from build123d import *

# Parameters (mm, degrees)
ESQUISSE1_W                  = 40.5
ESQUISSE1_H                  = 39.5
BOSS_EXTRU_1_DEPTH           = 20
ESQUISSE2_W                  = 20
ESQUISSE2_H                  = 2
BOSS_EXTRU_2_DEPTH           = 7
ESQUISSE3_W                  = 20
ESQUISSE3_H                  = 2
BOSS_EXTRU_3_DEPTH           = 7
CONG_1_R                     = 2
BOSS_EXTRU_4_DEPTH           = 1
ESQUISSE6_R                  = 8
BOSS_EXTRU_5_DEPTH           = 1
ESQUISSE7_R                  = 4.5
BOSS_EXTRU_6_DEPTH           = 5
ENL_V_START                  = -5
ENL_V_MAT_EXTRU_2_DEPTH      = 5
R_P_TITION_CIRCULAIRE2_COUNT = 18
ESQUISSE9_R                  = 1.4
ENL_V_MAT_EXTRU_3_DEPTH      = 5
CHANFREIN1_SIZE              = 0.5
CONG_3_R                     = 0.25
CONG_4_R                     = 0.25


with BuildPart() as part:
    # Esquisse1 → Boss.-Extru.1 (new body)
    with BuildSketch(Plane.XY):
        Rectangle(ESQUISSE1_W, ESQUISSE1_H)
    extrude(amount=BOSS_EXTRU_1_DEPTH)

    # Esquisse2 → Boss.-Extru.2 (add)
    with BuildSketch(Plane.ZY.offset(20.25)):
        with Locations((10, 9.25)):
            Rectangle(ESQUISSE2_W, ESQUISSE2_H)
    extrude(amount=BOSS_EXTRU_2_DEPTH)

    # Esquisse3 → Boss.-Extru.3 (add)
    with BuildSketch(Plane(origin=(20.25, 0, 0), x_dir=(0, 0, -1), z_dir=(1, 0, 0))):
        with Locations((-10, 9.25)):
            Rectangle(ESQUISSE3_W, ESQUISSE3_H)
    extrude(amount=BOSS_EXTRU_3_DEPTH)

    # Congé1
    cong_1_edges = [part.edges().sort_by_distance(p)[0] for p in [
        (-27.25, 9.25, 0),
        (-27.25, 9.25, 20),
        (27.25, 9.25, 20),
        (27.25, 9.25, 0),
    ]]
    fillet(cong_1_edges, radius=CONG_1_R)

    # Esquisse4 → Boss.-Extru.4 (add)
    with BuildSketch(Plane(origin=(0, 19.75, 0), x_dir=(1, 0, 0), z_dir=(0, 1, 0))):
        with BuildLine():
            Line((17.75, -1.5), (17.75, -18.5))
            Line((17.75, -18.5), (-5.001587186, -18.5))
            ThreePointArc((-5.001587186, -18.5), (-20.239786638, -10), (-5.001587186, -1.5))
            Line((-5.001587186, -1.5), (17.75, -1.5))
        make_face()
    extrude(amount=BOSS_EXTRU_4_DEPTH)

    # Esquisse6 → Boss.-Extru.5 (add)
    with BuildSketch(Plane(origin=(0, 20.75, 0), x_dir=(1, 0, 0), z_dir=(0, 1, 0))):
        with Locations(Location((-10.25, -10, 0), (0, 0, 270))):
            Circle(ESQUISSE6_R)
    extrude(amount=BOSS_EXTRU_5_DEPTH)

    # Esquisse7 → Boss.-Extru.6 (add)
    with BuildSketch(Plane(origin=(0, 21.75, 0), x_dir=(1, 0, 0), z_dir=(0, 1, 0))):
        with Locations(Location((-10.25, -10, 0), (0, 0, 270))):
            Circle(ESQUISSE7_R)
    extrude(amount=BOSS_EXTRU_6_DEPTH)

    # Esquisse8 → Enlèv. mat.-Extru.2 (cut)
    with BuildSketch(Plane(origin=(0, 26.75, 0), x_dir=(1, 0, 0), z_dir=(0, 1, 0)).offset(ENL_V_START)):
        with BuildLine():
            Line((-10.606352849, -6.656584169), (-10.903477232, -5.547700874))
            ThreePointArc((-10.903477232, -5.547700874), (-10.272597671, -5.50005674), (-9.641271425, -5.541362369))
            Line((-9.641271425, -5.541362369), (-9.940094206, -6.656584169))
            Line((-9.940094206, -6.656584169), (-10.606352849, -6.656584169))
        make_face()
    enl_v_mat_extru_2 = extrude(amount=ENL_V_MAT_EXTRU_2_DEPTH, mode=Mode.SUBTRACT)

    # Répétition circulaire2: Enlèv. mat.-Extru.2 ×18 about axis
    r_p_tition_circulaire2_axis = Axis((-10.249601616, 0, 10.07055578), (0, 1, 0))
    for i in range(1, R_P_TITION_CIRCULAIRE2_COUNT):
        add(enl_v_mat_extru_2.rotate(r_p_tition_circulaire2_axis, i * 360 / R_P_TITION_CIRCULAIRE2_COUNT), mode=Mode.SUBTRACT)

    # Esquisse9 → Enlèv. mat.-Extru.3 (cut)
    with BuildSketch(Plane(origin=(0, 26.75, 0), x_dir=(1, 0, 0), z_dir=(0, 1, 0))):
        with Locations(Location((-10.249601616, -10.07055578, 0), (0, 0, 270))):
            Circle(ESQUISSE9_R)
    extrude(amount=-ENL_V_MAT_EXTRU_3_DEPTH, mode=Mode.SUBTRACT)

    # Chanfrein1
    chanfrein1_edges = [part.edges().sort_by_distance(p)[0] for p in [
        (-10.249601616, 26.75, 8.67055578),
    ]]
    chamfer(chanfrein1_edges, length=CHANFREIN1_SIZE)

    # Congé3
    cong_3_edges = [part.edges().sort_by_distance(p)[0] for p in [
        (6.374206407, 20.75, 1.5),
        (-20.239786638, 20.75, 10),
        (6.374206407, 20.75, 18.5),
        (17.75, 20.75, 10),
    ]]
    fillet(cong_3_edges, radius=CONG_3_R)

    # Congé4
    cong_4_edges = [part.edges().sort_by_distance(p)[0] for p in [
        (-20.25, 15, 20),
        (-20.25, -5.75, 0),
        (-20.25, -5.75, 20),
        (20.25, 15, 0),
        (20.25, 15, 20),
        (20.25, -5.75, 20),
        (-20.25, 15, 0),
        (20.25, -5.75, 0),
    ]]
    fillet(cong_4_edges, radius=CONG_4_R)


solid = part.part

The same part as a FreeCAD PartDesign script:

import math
import FreeCAD as App
import Part
import Sketcher
from FreeCAD import Vector
Q = App.Units.Quantity


def edges_at(feature, points):
    """Names of the edges that pass closest to the given points."""
    edges = feature.Shape.Edges
    near = lambda p: min(range(len(edges)), key=lambda i: edges[i].distToShape(Part.Vertex(*p))[0])
    return sorted({f"Edge{near(p) + 1}" for p in points})


def add_polygon(sketch, points):
    """Adds a closed chain of lines whose ends are joined by coincident constraints."""
    first, n = sketch.GeometryCount, len(points)
    for a, b in zip(points, points[1:] + points[:1]):
        sketch.addGeometry(Part.LineSegment(App.Vector(*a, 0), App.Vector(*b, 0)), False)
    for i in range(n):
        sketch.addConstraint(Sketcher.Constraint("Coincident", first + i, 2, first + (i + 1) % n, 1))

doc = App.newDocument("Part")
params = doc.addObject("Spreadsheet::Sheet", "Params")
for row, (alias, value) in enumerate([
    ("sketch1_width", "40.5 mm"),
    ("sketch1_height", "39.5 mm"),
    ("pad1_length", "20 mm"),
    ("sketch2_width", "2 mm"),
    ("sketch2_height", "20 mm"),
    ("pad2_length", "7 mm"),
    ("sketch3_width", "2 mm"),
    ("sketch3_height", "20 mm"),
    ("pad3_length", "7 mm"),
    ("fillet_radius", "2 mm"),
    ("sketch4_height", "17 mm"),
    ("pad4_length", "1 mm"),
    ("sketch5_diameter", "16 mm"),
    ("pad5_length", "1 mm"),
    ("sketch6_diameter", "9 mm"),
    ("pad6_length", "5 mm"),
    ("sketch7_radius", "4.5 mm"),
    ("pocket1_length", "5 mm"),
    ("sketch8_diameter", "2.8 mm"),
    ("pocket2_length", "5 mm"),
    ("chamfer_size", "0.5 mm"),
    ("fillet2_radius", "0.25 mm"),
    ("fillet3_radius", "0.25 mm"),
], start=1):
    params.set(f"A{row}", alias)
    params.set(f"B{row}", "=" + value)
    params.setAlias(f"B{row}", alias)

body = doc.addObject("PartDesign::Body", "Body")

# Sketch on XY plane
sketch1 = body.newObject("Sketcher::SketchObject", "Sketch")
sketch1.AttachmentSupport = (doc.getObject("XY_Plane"), [""])
sketch1.MapMode = "FlatFace"
add_polygon(sketch1, [(-20, 20), (-20, -20), (20, -20), (20, 20)])  # lines 0-3
sketch1.addConstraint(Sketcher.Constraint("Vertical", 0))
sketch1.addConstraint(Sketcher.Constraint("Horizontal", 1))
sketch1.addConstraint(Sketcher.Constraint("Vertical", 2))
sketch1.addConstraint(Sketcher.Constraint("Horizontal", 3))
sketch1.addConstraint(Sketcher.Constraint("Symmetric", 0, 2, 2, 2, -1, 1))
sketch1.addConstraint(Sketcher.Constraint("DistanceX", 1, 1, 1, 2, 40.5))
sketch1.addConstraint(Sketcher.Constraint("DistanceY", 0, 2, 0, 1, 39.5))
sketch1.setExpression("Constraints[9]", "Params.sketch1_width")
sketch1.setExpression("Constraints[10]", "Params.sketch1_height")
pad1 = body.newObject("PartDesign::Pad", "Pad")
pad1.Profile = sketch1
pad1.setExpression("Length", "Params.pad1_length")

# Sketch on YZ plane
sketch2 = body.newObject("Sketcher::SketchObject", "Sketch001")
sketch2.AttachmentSupport = (doc.getObject("YZ_Plane"), [""])
sketch2.MapMode = "FlatFace"
sketch2.AttachmentOffset = App.Placement(Vector(0, 0, -20.25), App.Rotation())
add_polygon(sketch2, [(10.2, 0), (8.2, 0), (8.2, 20), (10.2, 20)])  # lines 0-3
sketch2.addConstraint(Sketcher.Constraint("Horizontal", 0))
sketch2.addConstraint(Sketcher.Constraint("Vertical", 1))
sketch2.addConstraint(Sketcher.Constraint("Horizontal", 2))
sketch2.addConstraint(Sketcher.Constraint("Vertical", 3))
sketch2.addConstraint(Sketcher.Constraint("PointOnObject", 0, 2, -1))
sketch2.addConstraint(Sketcher.Constraint("DistanceX", 0, 2, 0, 1, 2.0))
sketch2.addConstraint(Sketcher.Constraint("DistanceY", 1, 1, 1, 2, 20.0))
sketch2.addConstraint(Sketcher.Constraint("DistanceX", -1, 1, 0, 2, 8.25))
sketch2.setExpression("Constraints[9]", "Params.sketch2_width")
sketch2.setExpression("Constraints[10]", "Params.sketch2_height")
pad2 = body.newObject("PartDesign::Pad", "Pad001")
pad2.Profile = sketch2
pad2.setExpression("Length", "Params.pad2_length")
pad2.Reversed = True

# Sketch on YZ plane
sketch3 = body.newObject("Sketcher::SketchObject", "Sketch002")
sketch3.AttachmentSupport = (doc.getObject("YZ_Plane"), [""])
sketch3.MapMode = "FlatFace"
sketch3.AttachmentOffset = App.Placement(Vector(0, 0, 20.25), App.Rotation())
add_polygon(sketch3, [(10.2, 20), (8.2, 20), (8.2, 0), (10.2, 0)])  # lines 0-3
sketch3.addConstraint(Sketcher.Constraint("Horizontal", 0))
sketch3.addConstraint(Sketcher.Constraint("Vertical", 1))
sketch3.addConstraint(Sketcher.Constraint("Horizontal", 2))
sketch3.addConstraint(Sketcher.Constraint("Vertical", 3))
sketch3.addConstraint(Sketcher.Constraint("PointOnObject", 1, 2, -1))
sketch3.addConstraint(Sketcher.Constraint("DistanceX", 0, 2, 0, 1, 2.0))
sketch3.addConstraint(Sketcher.Constraint("DistanceY", 1, 2, 1, 1, 20.0))
sketch3.addConstraint(Sketcher.Constraint("DistanceX", -1, 1, 0, 2, 8.25))
sketch3.setExpression("Constraints[9]", "Params.sketch3_width")
sketch3.setExpression("Constraints[10]", "Params.sketch3_height")
pad3 = body.newObject("PartDesign::Pad", "Pad002")
pad3.Profile = sketch3
pad3.setExpression("Length", "Params.pad3_length")
doc.recompute()

fillet = body.newObject("PartDesign::Fillet", "Fillet")
fillet.Base = (pad3, edges_at(pad3, [
    (-27.25, 9.25, 0),
    (-27.25, 9.25, 20),
    (27.25, 9.25, 20),
    (27.25, 9.25, 0),
]))
fillet.setExpression("Radius", "Params.fillet_radius")

# Sketch on XZ plane
sketch4 = body.newObject("Sketcher::SketchObject", "Sketch003")
sketch4.AttachmentSupport = (doc.getObject("XZ_Plane"), [""])
sketch4.MapMode = "FlatFace"
sketch4.AttachmentOffset = App.Placement(Vector(0, 0, -19.75), App.Rotation())
sketch4.addGeometry(Part.LineSegment(Vector(18, 18, 0), Vector(18, 2, 0)), False)
sketch4.addGeometry(Part.LineSegment(Vector(18, 2, 0), Vector(-5, 2, 0)), False)
sketch4.addGeometry(Part.ArcOfCircle(Part.Circle(Vector(-10, 10, 0), Vector(0, 0, 1), 10), math.radians(58), math.radians(302)), False)
sketch4.addGeometry(Part.LineSegment(Vector(-5, 18, 0), Vector(18, 18, 0)), False)
sketch4.addConstraint(Sketcher.Constraint("Coincident", 0, 2, 1, 1))
sketch4.addConstraint(Sketcher.Constraint("Coincident", 1, 2, 2, 2))
sketch4.addConstraint(Sketcher.Constraint("Coincident", 2, 1, 3, 1))
sketch4.addConstraint(Sketcher.Constraint("Coincident", 3, 2, 0, 1))
sketch4.addConstraint(Sketcher.Constraint("Vertical", 0))
sketch4.addConstraint(Sketcher.Constraint("Horizontal", 1))
sketch4.addConstraint(Sketcher.Constraint("Horizontal", 3))
sketch4.addConstraint(Sketcher.Constraint("Vertical", 1, 2, 2, 1))
sketch4.addConstraint(Sketcher.Constraint("DistanceY", 0, 2, 0, 1, 17.0))
sketch4.addConstraint(Sketcher.Constraint("DistanceY", -1, 1, 2, 3, 10.0))
sketch4.addConstraint(Sketcher.Constraint("DistanceX", 2, 3, 0, 2, 28.0))
sketch4.addConstraint(Sketcher.Constraint("DistanceX", 2, 3, -1, 1, 10.25))
sketch4.addConstraint(Sketcher.Constraint("Radius", 2, 9.989787))
sketch4.setExpression("Constraints[8]", "Params.sketch4_height")
pad4 = body.newObject("PartDesign::Pad", "Pad003")
pad4.Profile = sketch4
pad4.setExpression("Length", "Params.pad4_length")
pad4.Reversed = True

# Sketch on XZ plane
sketch5 = body.newObject("Sketcher::SketchObject", "Sketch004")
sketch5.AttachmentSupport = (doc.getObject("XZ_Plane"), [""])
sketch5.MapMode = "FlatFace"
sketch5.AttachmentOffset = App.Placement(Vector(0, 0, -20.75), App.Rotation())
sketch5.addGeometry(Part.Circle(Vector(-10, 10, 0), Vector(0, 0, 1), 8), False)
sketch5.addConstraint(Sketcher.Constraint("Diameter", 0, 16.0))
sketch5.addConstraint(Sketcher.Constraint("DistanceY", -1, 1, 0, 3, 10.0))
sketch5.addConstraint(Sketcher.Constraint("DistanceX", 0, 3, -1, 1, 10.25))
sketch5.setExpression("Constraints[0]", "Params.sketch5_diameter")
pad5 = body.newObject("PartDesign::Pad", "Pad004")
pad5.Profile = sketch5
pad5.setExpression("Length", "Params.pad5_length")
pad5.Reversed = True

# Sketch on XZ plane
sketch6 = body.newObject("Sketcher::SketchObject", "Sketch005")
sketch6.AttachmentSupport = (doc.getObject("XZ_Plane"), [""])
sketch6.MapMode = "FlatFace"
sketch6.AttachmentOffset = App.Placement(Vector(0, 0, -21.75), App.Rotation())
sketch6.addGeometry(Part.Circle(Vector(-10.2, 10, 0), Vector(0, 0, 1), 4.5), False)
sketch6.addConstraint(Sketcher.Constraint("Diameter", 0, 9.0))
sketch6.addConstraint(Sketcher.Constraint("DistanceY", -1, 1, 0, 3, 10.0))
sketch6.addConstraint(Sketcher.Constraint("DistanceX", 0, 3, -1, 1, 10.25))
sketch6.setExpression("Constraints[0]", "Params.sketch6_diameter")
pad6 = body.newObject("PartDesign::Pad", "Pad005")
pad6.Profile = sketch6
pad6.setExpression("Length", "Params.pad6_length")
pad6.Reversed = True

# Sketch on XZ plane
sketch7 = body.newObject("Sketcher::SketchObject", "Sketch006")
sketch7.AttachmentSupport = (doc.getObject("XZ_Plane"), [""])
sketch7.MapMode = "FlatFace"
sketch7.AttachmentOffset = App.Placement(Vector(0, 0, -21.75), App.Rotation())
sketch7.addGeometry(Part.LineSegment(Vector(-10.9, 5.5, 0), Vector(-10.6, 6.7, 0)), False)
sketch7.addGeometry(Part.LineSegment(Vector(-10.6, 6.7, 0), Vector(-9.9, 6.7, 0)), False)
sketch7.addGeometry(Part.LineSegment(Vector(-9.9, 6.7, 0), Vector(-9.6, 5.5, 0)), False)
sketch7.addGeometry(Part.ArcOfCircle(Part.Circle(Vector(-10.2, 10, 0), Vector(0, 0, 1), 4.5), math.radians(-98.35), math.radians(-82.23)), False)
sketch7.addConstraint(Sketcher.Constraint("Coincident", 0, 2, 1, 1))
sketch7.addConstraint(Sketcher.Constraint("Coincident", 1, 2, 2, 1))
sketch7.addConstraint(Sketcher.Constraint("Coincident", 2, 2, 3, 2))
sketch7.addConstraint(Sketcher.Constraint("Coincident", 3, 1, 0, 1))
sketch7.addConstraint(Sketcher.Constraint("Horizontal", 1))
sketch7.addConstraint(Sketcher.Constraint("Radius", 3, 4.5))
sketch7.addConstraint(Sketcher.Constraint("Angle", 0, Q("75 deg")))
sketch7.addConstraint(Sketcher.Constraint("Angle", 2, Q("-75 deg")))
sketch7.addConstraint(Sketcher.Constraint("DistanceY", -1, 1, 3, 3, 10.0))
sketch7.addConstraint(Sketcher.Constraint("DistanceX", 3, 3, -1, 1, 10.25))
sketch7.addConstraint(Sketcher.Constraint("Distance", 0, 1.148))
sketch7.addConstraint(Sketcher.Constraint("DistanceX", 1, 1, 1, 2, 0.666259))
sketch7.addConstraint(Sketcher.Constraint("DistanceY", -1, 1, 3, 1, 5.547701))
sketch7.setExpression("Constraints[5]", "Params.sketch7_radius")
pocket1 = body.newObject("PartDesign::Pocket", "Pocket")
pocket1.Profile = sketch7
pocket1.setExpression("Length", "Params.pocket1_length")
doc.recompute()

datumline = body.newObject("PartDesign::Line", "DatumLine")
datumline.Placement = App.Placement(Vector(-10.249602, 0, 10.070556), App.Rotation(Vector(0, 0, 1), Vector(0, 1, 0)))
polarpattern = body.newObject("PartDesign::PolarPattern", "PolarPattern")
polarpattern.Originals = [pocket1]
polarpattern.Axis = (datumline, [""])
polarpattern.Angle = 360
polarpattern.Occurrences = 18
body.Tip = polarpattern

# Sketch on XZ plane
sketch8 = body.newObject("Sketcher::SketchObject", "Sketch007")
sketch8.AttachmentSupport = (doc.getObject("XZ_Plane"), [""])
sketch8.MapMode = "FlatFace"
sketch8.AttachmentOffset = App.Placement(Vector(0, 0, -26.75), App.Rotation())
sketch8.addGeometry(Part.Circle(Vector(-10.2, 10.1, 0), Vector(0, 0, 1), 1.4), False)
sketch8.addConstraint(Sketcher.Constraint("Diameter", 0, 2.8))
sketch8.addConstraint(Sketcher.Constraint("DistanceX", 0, 3, -1, 1, 10.249602))
sketch8.addConstraint(Sketcher.Constraint("DistanceY", -1, 1, 0, 3, 10.070556))
sketch8.setExpression("Constraints[0]", "Params.sketch8_diameter")
pocket2 = body.newObject("PartDesign::Pocket", "Pocket001")
pocket2.Profile = sketch8
pocket2.setExpression("Length", "Params.pocket2_length")
pocket2.Reversed = True
doc.recompute()

chamfer = body.newObject("PartDesign::Chamfer", "Chamfer")
chamfer.Base = (pocket2, edges_at(pocket2, [(-10.25, 26.75, 8.671)]))
chamfer.setExpression("Size", "Params.chamfer_size")
doc.recompute()

fillet2 = body.newObject("PartDesign::Fillet", "Fillet001")
fillet2.Base = (chamfer, edges_at(chamfer, [
    (6.374, 20.75, 1.5),
    (-20.24, 20.75, 10),
    (6.374, 20.75, 18.5),
    (17.75, 20.75, 10),
]))
fillet2.setExpression("Radius", "Params.fillet2_radius")
doc.recompute()

fillet3 = body.newObject("PartDesign::Fillet", "Fillet002")
fillet3.Base = (fillet2, edges_at(fillet2, [
    (-20.25, 15, 20),
    (-20.25, -5.75, 0),
    (-20.25, -5.75, 20),
    (20.25, 15, 0),
    (20.25, 15, 20),
    (20.25, -5.75, 20),
    (-20.25, 15, 0),
    (20.25, -5.75, 0),
]))
fillet3.setExpression("Radius", "Params.fillet3_radius")

doc.recompute()
